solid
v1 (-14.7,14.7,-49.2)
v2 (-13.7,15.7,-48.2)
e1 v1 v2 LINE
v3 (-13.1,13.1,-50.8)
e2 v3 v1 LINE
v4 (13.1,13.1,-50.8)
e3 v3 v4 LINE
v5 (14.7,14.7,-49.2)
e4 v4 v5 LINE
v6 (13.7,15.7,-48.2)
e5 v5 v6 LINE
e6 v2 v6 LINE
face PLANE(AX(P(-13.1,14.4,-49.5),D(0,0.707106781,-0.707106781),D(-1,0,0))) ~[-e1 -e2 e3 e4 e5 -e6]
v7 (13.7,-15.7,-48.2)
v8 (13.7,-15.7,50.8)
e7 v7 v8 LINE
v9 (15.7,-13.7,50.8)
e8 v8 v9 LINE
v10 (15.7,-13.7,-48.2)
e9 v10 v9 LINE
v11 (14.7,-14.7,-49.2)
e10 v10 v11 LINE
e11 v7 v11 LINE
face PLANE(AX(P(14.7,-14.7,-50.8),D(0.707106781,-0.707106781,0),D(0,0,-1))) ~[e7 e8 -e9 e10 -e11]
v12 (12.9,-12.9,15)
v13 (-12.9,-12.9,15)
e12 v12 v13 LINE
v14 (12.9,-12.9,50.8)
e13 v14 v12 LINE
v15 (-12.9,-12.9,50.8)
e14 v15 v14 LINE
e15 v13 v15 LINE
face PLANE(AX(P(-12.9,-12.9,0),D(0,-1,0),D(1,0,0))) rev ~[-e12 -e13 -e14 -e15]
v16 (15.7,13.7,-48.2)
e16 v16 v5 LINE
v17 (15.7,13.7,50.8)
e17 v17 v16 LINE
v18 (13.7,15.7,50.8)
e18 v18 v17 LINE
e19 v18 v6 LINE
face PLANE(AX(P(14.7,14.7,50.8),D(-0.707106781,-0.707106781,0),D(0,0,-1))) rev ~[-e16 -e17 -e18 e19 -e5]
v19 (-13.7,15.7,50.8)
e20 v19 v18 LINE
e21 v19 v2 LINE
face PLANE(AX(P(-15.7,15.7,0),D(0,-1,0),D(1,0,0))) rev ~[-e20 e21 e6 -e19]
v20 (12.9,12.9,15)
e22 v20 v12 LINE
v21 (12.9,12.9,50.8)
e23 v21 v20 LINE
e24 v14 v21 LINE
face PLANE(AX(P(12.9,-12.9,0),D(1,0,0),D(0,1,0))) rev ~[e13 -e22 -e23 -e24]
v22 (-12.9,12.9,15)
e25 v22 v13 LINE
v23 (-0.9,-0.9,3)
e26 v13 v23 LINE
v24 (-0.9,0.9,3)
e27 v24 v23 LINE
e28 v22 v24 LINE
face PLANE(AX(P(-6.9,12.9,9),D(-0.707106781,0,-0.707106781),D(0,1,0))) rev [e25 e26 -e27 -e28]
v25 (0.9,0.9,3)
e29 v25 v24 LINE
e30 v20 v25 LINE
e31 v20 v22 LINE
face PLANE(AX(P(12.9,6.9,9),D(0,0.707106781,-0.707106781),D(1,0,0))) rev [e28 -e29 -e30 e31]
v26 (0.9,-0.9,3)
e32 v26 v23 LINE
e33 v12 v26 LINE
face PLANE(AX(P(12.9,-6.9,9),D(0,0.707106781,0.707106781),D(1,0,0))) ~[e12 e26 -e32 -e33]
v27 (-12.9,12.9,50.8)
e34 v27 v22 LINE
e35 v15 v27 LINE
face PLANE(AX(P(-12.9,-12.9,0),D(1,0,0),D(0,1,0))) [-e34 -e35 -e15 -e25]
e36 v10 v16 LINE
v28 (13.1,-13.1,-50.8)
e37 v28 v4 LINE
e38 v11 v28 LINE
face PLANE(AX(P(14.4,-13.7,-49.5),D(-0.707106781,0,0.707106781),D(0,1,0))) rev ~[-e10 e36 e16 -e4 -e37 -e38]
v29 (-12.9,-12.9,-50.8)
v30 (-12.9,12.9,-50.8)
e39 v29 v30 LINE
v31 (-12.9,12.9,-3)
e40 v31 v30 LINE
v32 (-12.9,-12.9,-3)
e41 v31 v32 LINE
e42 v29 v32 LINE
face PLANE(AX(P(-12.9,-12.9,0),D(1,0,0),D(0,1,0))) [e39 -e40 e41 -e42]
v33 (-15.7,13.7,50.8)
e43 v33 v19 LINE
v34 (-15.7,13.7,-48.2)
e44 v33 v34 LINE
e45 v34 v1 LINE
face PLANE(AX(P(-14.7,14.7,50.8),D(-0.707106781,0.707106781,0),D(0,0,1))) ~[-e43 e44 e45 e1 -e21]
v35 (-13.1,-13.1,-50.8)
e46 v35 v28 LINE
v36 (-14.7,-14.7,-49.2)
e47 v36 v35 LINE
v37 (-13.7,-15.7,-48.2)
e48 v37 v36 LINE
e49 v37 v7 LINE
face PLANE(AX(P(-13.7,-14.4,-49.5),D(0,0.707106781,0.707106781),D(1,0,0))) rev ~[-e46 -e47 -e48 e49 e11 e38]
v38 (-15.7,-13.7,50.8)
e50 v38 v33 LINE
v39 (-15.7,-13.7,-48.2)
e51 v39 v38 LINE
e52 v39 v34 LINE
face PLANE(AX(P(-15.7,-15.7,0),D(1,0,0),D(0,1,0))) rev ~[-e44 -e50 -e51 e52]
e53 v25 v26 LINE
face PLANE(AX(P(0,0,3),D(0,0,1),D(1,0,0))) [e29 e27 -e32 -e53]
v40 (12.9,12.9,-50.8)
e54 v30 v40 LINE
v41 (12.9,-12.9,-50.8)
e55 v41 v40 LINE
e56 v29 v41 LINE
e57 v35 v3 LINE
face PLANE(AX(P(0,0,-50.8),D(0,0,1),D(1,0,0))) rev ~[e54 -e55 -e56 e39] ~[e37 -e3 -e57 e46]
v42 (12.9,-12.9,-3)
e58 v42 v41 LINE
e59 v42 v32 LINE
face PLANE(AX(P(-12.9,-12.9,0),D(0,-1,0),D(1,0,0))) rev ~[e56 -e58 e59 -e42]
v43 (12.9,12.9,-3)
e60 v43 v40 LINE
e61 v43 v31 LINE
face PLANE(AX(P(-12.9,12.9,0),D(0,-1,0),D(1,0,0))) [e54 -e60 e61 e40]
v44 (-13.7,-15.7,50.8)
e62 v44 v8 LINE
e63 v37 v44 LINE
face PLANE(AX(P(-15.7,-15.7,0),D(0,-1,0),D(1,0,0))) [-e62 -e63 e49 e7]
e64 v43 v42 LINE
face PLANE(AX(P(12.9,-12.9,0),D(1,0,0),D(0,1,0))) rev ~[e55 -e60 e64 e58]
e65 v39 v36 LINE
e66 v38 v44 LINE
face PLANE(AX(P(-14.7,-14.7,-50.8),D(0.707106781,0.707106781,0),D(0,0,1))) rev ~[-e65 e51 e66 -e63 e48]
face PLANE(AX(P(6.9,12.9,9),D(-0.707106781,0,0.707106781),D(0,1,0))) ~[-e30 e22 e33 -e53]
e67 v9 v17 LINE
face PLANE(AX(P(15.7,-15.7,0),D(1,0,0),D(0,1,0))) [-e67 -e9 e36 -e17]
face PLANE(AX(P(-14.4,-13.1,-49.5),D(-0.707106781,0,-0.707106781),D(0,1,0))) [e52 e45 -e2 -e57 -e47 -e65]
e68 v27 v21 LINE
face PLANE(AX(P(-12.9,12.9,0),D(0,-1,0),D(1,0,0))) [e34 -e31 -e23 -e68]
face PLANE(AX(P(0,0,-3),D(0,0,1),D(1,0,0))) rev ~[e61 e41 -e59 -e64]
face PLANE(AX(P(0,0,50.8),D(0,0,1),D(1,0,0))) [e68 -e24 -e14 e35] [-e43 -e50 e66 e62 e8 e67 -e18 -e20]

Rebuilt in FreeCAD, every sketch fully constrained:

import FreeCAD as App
import Part
import Sketcher
Q = App.Units.Quantity


def edges_at(feature, points):
    """Names of the edges that pass closest to the given points."""
    edges = feature.Shape.Edges
    near = lambda p: min(range(len(edges)), key=lambda i: edges[i].distToShape(Part.Vertex(*p))[0])
    return sorted({f"Edge{near(p) + 1}" for p in points})

doc = App.newDocument("Part")
body = doc.addObject("PartDesign::Body", "Body")

# Sketch on XY plane
sketch1 = body.newObject("Sketcher::SketchObject", "Sketch")
sketch1.AttachmentSupport = (doc.getObject("XY_Plane"), [""])
sketch1.MapMode = "FlatFace"
sketch1.addGeometry([
    Part.LineSegment(App.Vector(-16, 16, 0), App.Vector(-16, -16, 0)),  # 0
    Part.LineSegment(App.Vector(-16, -16, 0), App.Vector(16, -16, 0)),  # 1
    Part.LineSegment(App.Vector(16, -16, 0), App.Vector(16, 16, 0)),  # 2
    Part.LineSegment(App.Vector(16, 16, 0), App.Vector(-16, 16, 0)),  # 3
    Part.LineSegment(App.Vector(13, -13, 0), App.Vector(-13, -13, 0)),  # 4
    Part.LineSegment(App.Vector(-13, -13, 0), App.Vector(-13, 13, 0)),  # 5
    Part.LineSegment(App.Vector(-13, 13, 0), App.Vector(13, 13, 0)),  # 6
    Part.LineSegment(App.Vector(13, 13, 0), App.Vector(13, -13, 0)),  # 7
], False)
sketch1.addConstraint([
    Sketcher.Constraint("Coincident", 0, 2, 1, 1),
    Sketcher.Constraint("Coincident", 1, 2, 2, 1),
    Sketcher.Constraint("Coincident", 2, 2, 3, 1),
    Sketcher.Constraint("Coincident", 3, 2, 0, 1),
    Sketcher.Constraint("Coincident", 4, 2, 5, 1),
    Sketcher.Constraint("Coincident", 5, 2, 6, 1),
    Sketcher.Constraint("Coincident", 6, 2, 7, 1),
    Sketcher.Constraint("Coincident", 7, 2, 4, 1),
    Sketcher.Constraint("Vertical", 0),
    Sketcher.Constraint("Horizontal", 1),
    Sketcher.Constraint("Vertical", 2),
    Sketcher.Constraint("Horizontal", 3),
    Sketcher.Constraint("Horizontal", 4),
    Sketcher.Constraint("Vertical", 5),
    Sketcher.Constraint("Horizontal", 6),
    Sketcher.Constraint("Vertical", 7),
    Sketcher.Constraint("Symmetric", 0, 2, 2, 2, -1, 1),
    Sketcher.Constraint("Symmetric", 4, 2, 6, 2, -1, 1),
    Sketcher.Constraint("Equal", 3, 0),
    Sketcher.Constraint("Equal", 6, 5),
    Sketcher.Constraint("DistanceX", 1, 1, 1, 2, Q("31.4 mm")),
    Sketcher.Constraint("DistanceX", 4, 2, 4, 1, Q("25.8 mm")),
])
pad1 = body.newObject("PartDesign::Pad", "Pad")
pad1.Profile = sketch1
pad1.Type = "TwoLengths"
pad1.Length = 50.8
pad1.Length2 = 50.8

# Sketch on XY plane
sketch2 = body.newObject("Sketcher::SketchObject", "Sketch001")
sketch2.AttachmentSupport = (doc.getObject("XY_Plane"), [""])
sketch2.MapMode = "FlatFace"
sketch2.addGeometry([
    Part.LineSegment(App.Vector(-14, 14, 0), App.Vector(-14, -14, 0)),
    Part.LineSegment(App.Vector(-14, -14, 0), App.Vector(14, -14, 0)),
    Part.LineSegment(App.Vector(14, -14, 0), App.Vector(14, 14, 0)),
    Part.LineSegment(App.Vector(14, 14, 0), App.Vector(-14, 14, 0)),
], False)
sketch2.addConstraint([
    Sketcher.Constraint("Coincident", 0, 2, 1, 1),
    Sketcher.Constraint("Coincident", 1, 2, 2, 1),
    Sketcher.Constraint("Coincident", 2, 2, 3, 1),
    Sketcher.Constraint("Coincident", 3, 2, 0, 1),
    Sketcher.Constraint("Vertical", 0),
    Sketcher.Constraint("Horizontal", 1),
    Sketcher.Constraint("Vertical", 2),
    Sketcher.Constraint("Horizontal", 3),
    Sketcher.Constraint("Symmetric", 0, 2, 2, 2, -1, 1),
    Sketcher.Constraint("Equal", 3, 0),
    Sketcher.Constraint("DistanceX", 1, 1, 1, 2, Q("28 mm")),
])
pad2 = body.newObject("PartDesign::Pad", "Pad001")
pad2.Profile = sketch2
pad2.Type = "TwoLengths"
pad2.Length = 3
pad2.Length2 = 3
doc.recompute()

chamfer = body.newObject("PartDesign::Chamfer", "Chamfer")
chamfer.Base = (pad2, edges_at(pad2, [
    (0, 12.9, 3),
    (12.9, 0, 3),
    (0, -12.9, 3),
    (-12.9, 0, 3),
]))
chamfer.Size = 12
doc.recompute()

chamfer2 = body.newObject("PartDesign::Chamfer", "Chamfer001")
chamfer2.Base = (chamfer, edges_at(chamfer, [
    (15.7, -15.7, 0),
    (-15.7, -15.7, 0),
    (15.7, 15.7, 0),
    (-15.7, 15.7, 0),
]))
chamfer2.Size = 2
doc.recompute()

chamfer3 = body.newObject("PartDesign::Chamfer", "Chamfer002")
chamfer3.Base = (chamfer2, edges_at(chamfer2, [(15.7, 0, -50.8)]))
chamfer3.Size = 2.6
doc.recompute()

chamfer4 = body.newObject("PartDesign::Chamfer", "Chamfer003")
chamfer4.Base = (chamfer3, edges_at(chamfer3, [(-0.3, -15.7, -50.8)]))
chamfer4.Size = 2.6
doc.recompute()

chamfer5 = body.newObject("PartDesign::Chamfer", "Chamfer004")
chamfer5.Base = (chamfer4, edges_at(chamfer4, [(-15.7, 0.3, -50.8)]))
chamfer5.Size = 2.6
doc.recompute()

chamfer6 = body.newObject("PartDesign::Chamfer", "Chamfer005")
chamfer6.Base = (chamfer5, edges_at(chamfer5, [(0, 15.7, -50.8)]))
chamfer6.Size = 2.6

doc.recompute()
